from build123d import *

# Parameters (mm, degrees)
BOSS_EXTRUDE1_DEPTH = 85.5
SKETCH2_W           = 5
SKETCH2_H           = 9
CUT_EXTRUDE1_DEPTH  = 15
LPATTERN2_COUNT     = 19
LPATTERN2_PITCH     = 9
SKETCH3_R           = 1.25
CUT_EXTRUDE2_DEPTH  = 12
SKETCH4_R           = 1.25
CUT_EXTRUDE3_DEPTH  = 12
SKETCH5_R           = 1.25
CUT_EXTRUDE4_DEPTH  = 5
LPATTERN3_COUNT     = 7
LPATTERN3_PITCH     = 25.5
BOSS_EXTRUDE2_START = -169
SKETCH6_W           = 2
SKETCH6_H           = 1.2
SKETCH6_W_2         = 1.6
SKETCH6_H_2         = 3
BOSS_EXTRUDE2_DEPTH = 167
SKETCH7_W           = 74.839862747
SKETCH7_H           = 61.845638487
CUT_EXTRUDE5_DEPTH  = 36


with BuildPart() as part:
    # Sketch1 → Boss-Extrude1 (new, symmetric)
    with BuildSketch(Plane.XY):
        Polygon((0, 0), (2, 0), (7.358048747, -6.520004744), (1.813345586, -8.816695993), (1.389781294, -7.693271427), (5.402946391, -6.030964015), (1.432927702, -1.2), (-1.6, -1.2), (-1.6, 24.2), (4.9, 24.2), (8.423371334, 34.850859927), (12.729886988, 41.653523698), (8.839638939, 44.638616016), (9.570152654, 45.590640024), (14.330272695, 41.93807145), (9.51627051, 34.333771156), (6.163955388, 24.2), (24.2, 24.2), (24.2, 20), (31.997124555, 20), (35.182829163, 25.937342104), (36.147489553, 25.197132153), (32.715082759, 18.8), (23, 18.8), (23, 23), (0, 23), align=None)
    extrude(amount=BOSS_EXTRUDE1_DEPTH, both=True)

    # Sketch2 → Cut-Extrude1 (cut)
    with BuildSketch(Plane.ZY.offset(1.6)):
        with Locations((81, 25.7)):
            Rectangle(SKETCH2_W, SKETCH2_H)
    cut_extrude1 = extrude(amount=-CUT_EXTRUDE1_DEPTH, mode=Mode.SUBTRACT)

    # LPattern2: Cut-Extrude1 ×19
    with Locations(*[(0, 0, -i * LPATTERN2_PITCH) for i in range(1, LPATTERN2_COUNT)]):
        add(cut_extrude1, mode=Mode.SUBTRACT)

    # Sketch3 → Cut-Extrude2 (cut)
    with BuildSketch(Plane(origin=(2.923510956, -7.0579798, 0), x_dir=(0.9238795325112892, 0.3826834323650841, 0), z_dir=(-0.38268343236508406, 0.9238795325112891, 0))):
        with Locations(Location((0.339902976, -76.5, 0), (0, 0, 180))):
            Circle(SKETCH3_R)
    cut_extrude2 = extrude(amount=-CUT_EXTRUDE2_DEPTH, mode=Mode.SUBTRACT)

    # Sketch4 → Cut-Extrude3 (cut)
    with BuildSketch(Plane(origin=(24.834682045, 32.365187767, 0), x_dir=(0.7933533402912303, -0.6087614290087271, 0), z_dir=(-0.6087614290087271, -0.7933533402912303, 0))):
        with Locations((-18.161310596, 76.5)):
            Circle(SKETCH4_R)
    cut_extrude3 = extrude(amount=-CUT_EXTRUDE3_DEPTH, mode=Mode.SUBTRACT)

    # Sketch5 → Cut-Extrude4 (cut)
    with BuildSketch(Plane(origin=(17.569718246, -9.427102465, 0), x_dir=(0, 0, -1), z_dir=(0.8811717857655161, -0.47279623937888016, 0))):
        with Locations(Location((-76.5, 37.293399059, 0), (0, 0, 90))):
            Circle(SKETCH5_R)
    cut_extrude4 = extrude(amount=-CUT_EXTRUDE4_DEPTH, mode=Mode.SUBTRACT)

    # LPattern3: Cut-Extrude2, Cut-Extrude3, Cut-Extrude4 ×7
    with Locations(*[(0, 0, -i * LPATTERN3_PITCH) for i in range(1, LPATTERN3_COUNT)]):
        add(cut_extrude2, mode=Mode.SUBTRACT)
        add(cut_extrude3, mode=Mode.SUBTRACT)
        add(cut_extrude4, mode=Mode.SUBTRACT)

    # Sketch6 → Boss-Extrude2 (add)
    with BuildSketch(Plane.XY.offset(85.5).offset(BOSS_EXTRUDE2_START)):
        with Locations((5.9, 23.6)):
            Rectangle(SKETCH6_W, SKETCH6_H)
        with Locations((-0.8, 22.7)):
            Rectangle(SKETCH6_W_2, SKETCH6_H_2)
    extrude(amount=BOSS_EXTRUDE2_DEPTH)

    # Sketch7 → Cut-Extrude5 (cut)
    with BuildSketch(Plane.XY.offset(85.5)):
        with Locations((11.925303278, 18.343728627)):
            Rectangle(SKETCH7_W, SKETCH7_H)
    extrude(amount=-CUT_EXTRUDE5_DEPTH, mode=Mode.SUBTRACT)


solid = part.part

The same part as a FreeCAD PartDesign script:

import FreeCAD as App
import Part
import Sketcher

V = App.Vector
Q = App.Units.Quantity


def add_polygon(sketch, points):
    """Adds a closed chain of lines whose ends are joined by coincident constraints."""
    first, n = sketch.GeometryCount, len(points)
    for a, b in zip(points, points[1:] + points[:1]):
        sketch.addGeometry(Part.LineSegment(App.Vector(*a, 0), App.Vector(*b, 0)), False)
    for i in range(n):
        sketch.addConstraint(Sketcher.Constraint("Coincident", first + i, 2, first + (i + 1) % n, 1))

doc = App.newDocument("Part")
params = doc.addObject("Spreadsheet::Sheet", "Params")
for row, (alias, value) in enumerate([
    ("sketch1_width", "2 mm"),
    ("sketch1_width2", "23 mm"),
    ("sketch1_length", "9 mm"),
    ("sketch1_length2", "6 mm"),
    ("sketch1_width3", "6.5 mm"),
    ("pad1_length", "171 mm"),
    ("sketch2_width", "9 mm"),
    ("sketch2_height", "5 mm"),
    ("pocket1_length", "15 mm"),
    ("linearpattern_pitch", "9 mm"),
    ("sketch3_diameter", "2.5 mm"),
    ("pocket2_length", "12 mm"),
    ("sketch4_diameter", "2.5 mm"),
    ("pocket3_length", "12 mm"),
    ("sketch5_diameter", "2.5 mm"),
    ("pocket4_length", "5 mm"),
    ("linearpattern2_pitch", "25.5 mm"),
    ("sketch6_width", "2 mm"),
    ("sketch6_height", "3 mm"),
    ("sketch6_width2", "1.6 mm"),
    ("sketch6_height2", "1.2 mm"),
    ("pad2_length", "167 mm"),
    ("pocket5_length", "36 mm"),
], start=1):
    params.set(f"A{row}", alias)
    params.set(f"B{row}", "=" + value)
    params.setAlias(f"B{row}", alias)

body = doc.addObject("PartDesign::Body", "Body")

# Sketch on XY plane
sketch1 = body.newObject("Sketcher::SketchObject", "Sketch")
sketch1.AttachmentSupport = (doc.getObject("XY_Plane"), [""])
sketch1.MapMode = "FlatFace"
add_polygon(sketch1, [(2, 0), (0, 0), (0, 23), (23, 23), (23, 18.8), (32.715083, 18.8), (36.14749, 25.197132), (35.182829, 25.937342), (31.997125, 20), (24.2, 20), (24.2, 24.2), (6.163955, 24.2), (9.516271, 34.333771), (14.330273, 41.938071), (9.570153, 45.59064), (8.839639, 44.638616), (12.729887, 41.653524), (8.423371, 34.85086), (4.9, 24.2), (-1.6, 24.2), (-1.6, -1.2), (1.432928, -1.2), (5.402946, -6.030964), (1.389781, -7.693271), (1.813346, -8.816696), (7.358049, -6.520005)])  # lines 0-25
sketch1.addConstraint([
    Sketcher.Constraint("Horizontal", 0),
    Sketcher.Constraint("Vertical", 1),
    Sketcher.Constraint("Horizontal", 2),
    Sketcher.Constraint("Vertical", 3),
    Sketcher.Constraint("Horizontal", 4),
    Sketcher.Constraint("Horizontal", 8),
    Sketcher.Constraint("Vertical", 9),
    Sketcher.Constraint("Horizontal", 10),
    Sketcher.Constraint("Horizontal", 18),
    Sketcher.Constraint("Vertical", 19),
    Sketcher.Constraint("Horizontal", 20),
    Sketcher.Constraint("Coincident", 0, 2, -1, 1),
    Sketcher.Constraint("Parallel", 5, 7),
    Sketcher.Constraint("Parallel", 6, 13),
    Sketcher.Constraint("Perpendicular", 13, 14),
    Sketcher.Constraint("Perpendicular", 14, 15),
    Sketcher.Constraint("Parallel", 12, 16),
    Sketcher.Constraint("Parallel", 11, 17),
    Sketcher.Constraint("Parallel", 22, 24),
    Sketcher.Constraint("Parallel", 21, 25),
    Sketcher.Constraint("Horizontal", 10, 2, 17, 2),
    Sketcher.Constraint("Equal", 2, 1),
    Sketcher.Constraint("Equal", 3, 9),
    Sketcher.Constraint("DistanceX", 0, 2, 0, 1, 2.0),
    Sketcher.Constraint("DistanceX", 2, 1, 2, 2, 23.0),
    Sketcher.Constraint("Distance", 12, 9.0),
    Sketcher.Constraint("Distance", 13, 6.0),
    Sketcher.Constraint("DistanceX", 18, 2, 18, 1, 6.5),
    Sketcher.Constraint("DistanceY", 3, 2, 3, 1, 4.2),
    Sketcher.Constraint("DistanceY", 19, 2, 19, 1, 25.4),
    Sketcher.Constraint("DistanceY", -1, 1, 7, 2, 20.0),
    Sketcher.Constraint("Angle", 6, Q("142.5 deg")),
    Sketcher.Constraint("Angle", 22, Q("-157.5 deg")),
    Sketcher.Constraint("Distance", 14, 1.2),
    Sketcher.Constraint("DistanceX", -1, 1, 8, 2, 24.2),
    Sketcher.Constraint("DistanceX", -1, 1, 17, 2, 4.9),
    Sketcher.Constraint("Distance", 5, 7.259801),
    Sketcher.Constraint("DistanceY", 11, 2, 12, 2, 7.6043),
    Sketcher.Constraint("DistanceX", 16, 2, 11, 2, 1.092899),
    Sketcher.Constraint("DistanceX", 23, 2, 21, 2, 3.589601),
    Sketcher.Constraint("Distance", 15, 4.90355),
    Sketcher.Constraint("Distance", 17, 11.21851),
    Sketcher.Constraint("Distance", 21, 6.25294),
    Sketcher.Constraint("Distance", 22, 4.343819),
    Sketcher.Constraint("Distance", 23, 1.20062),
    Sketcher.Constraint("DistanceX", 4, 1, 4, 2, 9.715083),
    Sketcher.Constraint("DistanceX", 8, 2, 8, 1, 7.797125),
    Sketcher.Constraint("DistanceX", 10, 2, 10, 1, 18.036045),
    Sketcher.Constraint("DistanceX", 20, 1, 20, 2, 3.032928),
    Sketcher.Constraint("DistanceX", -1, 1, 5, 2, 36.14749),
    Sketcher.Constraint("DistanceX", -1, 1, 22, 2, 1.389781),
])
sketch1.setExpression("Constraints[49]", "Params.sketch1_width")
sketch1.setExpression("Constraints[50]", "Params.sketch1_width2")
sketch1.setExpression("Constraints[51]", "Params.sketch1_length")
sketch1.setExpression("Constraints[52]", "Params.sketch1_length2")
sketch1.setExpression("Constraints[53]", "Params.sketch1_width3")
pad1 = body.newObject("PartDesign::Pad", "Pad")
pad1.Profile = sketch1
pad1.setExpression("Length", "Params.pad1_length")
pad1.Midplane = True

# Sketch on YZ plane
sketch2 = body.newObject("Sketcher::SketchObject", "Sketch001")
sketch2.AttachmentSupport = (doc.getObject("YZ_Plane"), [""])
sketch2.MapMode = "FlatFace"
sketch2.AttachmentOffset = App.Placement(V(0, 0, -1.6), App.Rotation())
add_polygon(sketch2, [(30.2, 78.5), (21.2, 78.5), (21.2, 83.5), (30.2, 83.5)])  # lines 0-3
sketch2.addConstraint([
    Sketcher.Constraint("Horizontal", 0),
    Sketcher.Constraint("Vertical", 1),
    Sketcher.Constraint("Horizontal", 2),
    Sketcher.Constraint("Vertical", 3),
    Sketcher.Constraint("DistanceX", 0, 2, 0, 1, 9.0),
    Sketcher.Constraint("DistanceY", 1, 1, 1, 2, 5.0),
    Sketcher.Constraint("DistanceX", -1, 1, 0, 2, 21.2),
    Sketcher.Constraint("DistanceY", -1, 1, 0, 2, 78.5),
])
sketch2.setExpression("Constraints[8]", "Params.sketch2_width")
sketch2.setExpression("Constraints[9]", "Params.sketch2_height")
pocket1 = body.newObject("PartDesign::Pocket", "Pocket")
pocket1.Profile = sketch2
pocket1.setExpression("Length", "Params.pocket1_length")
pocket1.Reversed = True
doc.recompute()

linearpattern = body.newObject("PartDesign::LinearPattern", "LinearPattern")
linearpattern.Originals = [pocket1]
linearpattern.Direction = (doc.getObject("Z_Axis"), [""])
linearpattern.Mode = "offset"
linearpattern.setExpression("Offset", "Params.linearpattern_pitch")
linearpattern.Occurrences = 19
linearpattern.Reversed = True
body.Tip = linearpattern

# Sketch on an angled plane
sketch3 = body.newObject("Sketcher::SketchObject", "Sketch002")
sketch3.Placement = App.Placement(V(2.923511, -7.05798, 0), App.Rotation(V(0.923879533, 0.382683432, 0), V(0, 0, -1.000000001), V(-0.382683432, 0.923879533, 0), "ZXY"))
sketch3.addGeometry(Part.Circle(V(0.339903, -76.5, 0), V(0, 0, 1), 1.25), False)
sketch3.addConstraint([
    Sketcher.Constraint("Diameter", 0, 2.5),
    Sketcher.Constraint("DistanceY", 0, 3, -1, 1, 76.5),
    Sketcher.Constraint("DistanceX", -1, 1, 0, 3, 0.339903),
])
sketch3.setExpression("Constraints[0]", "Params.sketch3_diameter")
pocket2 = body.newObject("PartDesign::Pocket", "Pocket001")
pocket2.Profile = sketch3
pocket2.setExpression("Length", "Params.pocket2_length")

# Sketch on an angled plane
sketch4 = body.newObject("Sketcher::SketchObject", "Sketch003")
sketch4.Placement = App.Placement(V(24.834682, 32.365188, 0), App.Rotation(V(0.79335334, -0.608761429, 0), V(0, 0, 1), V(-0.608761429, -0.79335334, 0), "ZXY"))
sketch4.addGeometry(Part.Circle(V(-18.161311, 76.5, 0), V(0, 0, 1), 1.25), False)
sketch4.addConstraint([
    Sketcher.Constraint("Diameter", 0, 2.5),
    Sketcher.Constraint("DistanceY", -1, 1, 0, 3, 76.5),
    Sketcher.Constraint("DistanceX", 0, 3, -1, 1, 18.161311),
])
sketch4.setExpression("Constraints[0]", "Params.sketch4_diameter")
pocket3 = body.newObject("PartDesign::Pocket", "Pocket002")
pocket3.Profile = sketch4
pocket3.setExpression("Length", "Params.pocket3_length")

# Sketch on an angled plane
sketch5 = body.newObject("Sketcher::SketchObject", "Sketch004")
sketch5.Placement = App.Placement(V(17.569718, -9.427102, 0), App.Rotation(V(0, 0, -1), V(0.472796239, 0.881171786, 0), V(0.881171786, -0.472796239, 0), "ZXY"))
sketch5.addGeometry(Part.Circle(V(-76.5, 37.293399, 0), V(0, 0, 1), 1.25), False)
sketch5.addConstraint([
    Sketcher.Constraint("Diameter", 0, 2.5),
    Sketcher.Constraint("DistanceX", 0, 3, -1, 1, 76.5),
    Sketcher.Constraint("DistanceY", -1, 1, 0, 3, 37.293399),
])
sketch5.setExpression("Constraints[0]", "Params.sketch5_diameter")
pocket4 = body.newObject("PartDesign::Pocket", "Pocket003")
pocket4.Profile = sketch5
pocket4.setExpression("Length", "Params.pocket4_length")
doc.recompute()

linearpattern2 = body.newObject("PartDesign::LinearPattern", "LinearPattern001")
linearpattern2.Originals = [pocket2, pocket3, pocket4]
linearpattern2.Direction = (doc.getObject("Z_Axis"), [""])
linearpattern2.Mode = "offset"
linearpattern2.setExpression("Offset", "Params.linearpattern2_pitch")
linearpattern2.Occurrences = 7
linearpattern2.Reversed = True
body.Tip = linearpattern2

# Sketch on XY plane
sketch6 = body.newObject("Sketcher::SketchObject", "Sketch005")
sketch6.AttachmentSupport = (doc.getObject("XY_Plane"), [""])
sketch6.MapMode = "FlatFace"
sketch6.AttachmentOffset = App.Placement(V(0, 0, -83.5), App.Rotation())
add_polygon(sketch6, [(4.9, 24.2), (4.9, 23), (6.9, 23), (6.9, 24.2)])  # lines 0-3
add_polygon(sketch6, [(-1.6, 24.2), (-1.6, 21.2), (0, 21.2), (0, 24.2)])  # lines 4-7
sketch6.addConstraint([
    Sketcher.Constraint("Vertical", 0),
    Sketcher.Constraint("Horizontal", 1),
    Sketcher.Constraint("Vertical", 2),
    Sketcher.Constraint("Horizontal", 3),
    Sketcher.Constraint("Vertical", 4),
    Sketcher.Constraint("Horizontal", 5),
    Sketcher.Constraint("Vertical", 6),
    Sketcher.Constraint("Horizontal", 7),
    Sketcher.Constraint("PointOnObject", 5, 2, -2),
    Sketcher.Constraint("Horizontal", 3, 2, 6, 2),
    Sketcher.Constraint("DistanceX", 1, 1, 1, 2, 2.0),
    Sketcher.Constraint("DistanceY", 4, 2, 4, 1, 3.0),
    Sketcher.Constraint("DistanceX", 5, 1, 5, 2, 1.6),
    Sketcher.Constraint("DistanceY", 0, 2, 0, 1, 1.2),
    Sketcher.Constraint("DistanceY", -1, 1, 0, 2, 23.0),
    Sketcher.Constraint("DistanceX", -1, 1, 0, 2, 4.9),
])
sketch6.setExpression("Constraints[18]", "Params.sketch6_width")
sketch6.setExpression("Constraints[19]", "Params.sketch6_height")
sketch6.setExpression("Constraints[20]", "Params.sketch6_width2")
sketch6.setExpression("Constraints[21]", "Params.sketch6_height2")
pad2 = body.newObject("PartDesign::Pad", "Pad001")
pad2.Profile = sketch6
pad2.setExpression("Length", "Params.pad2_length")

# Sketch on XY plane
sketch7 = body.newObject("Sketcher::SketchObject", "Sketch006")
sketch7.AttachmentSupport = (doc.getObject("XY_Plane"), [""])
sketch7.MapMode = "FlatFace"
sketch7.AttachmentOffset = App.Placement(V(0, 0, 85.5), App.Rotation())
add_polygon(sketch7, [(-25.494628, 49.266548), (-25.494628, -12.579091), (49.345235, -12.579091), (49.345235, 49.266548)])  # lines 0-3
sketch7.addConstraint([
    Sketcher.Constraint("Vertical", 0),
    Sketcher.Constraint("Horizontal", 1),
    Sketcher.Constraint("Vertical", 2),
    Sketcher.Constraint("Horizontal", 3),
    Sketcher.Constraint("DistanceY", 0, 2, 0, 1, 61.845638),
    Sketcher.Constraint("DistanceX", 1, 1, 1, 2, 74.839863),
    Sketcher.Constraint("DistanceX", 0, 2, -1, 1, 25.494628),
    Sketcher.Constraint("DistanceY", 0, 2, -1, 1, 12.579091),
])
pocket5 = body.newObject("PartDesign::Pocket", "Pocket004")
pocket5.Profile = sketch7
pocket5.setExpression("Length", "Params.pocket5_length")

doc.recompute()
